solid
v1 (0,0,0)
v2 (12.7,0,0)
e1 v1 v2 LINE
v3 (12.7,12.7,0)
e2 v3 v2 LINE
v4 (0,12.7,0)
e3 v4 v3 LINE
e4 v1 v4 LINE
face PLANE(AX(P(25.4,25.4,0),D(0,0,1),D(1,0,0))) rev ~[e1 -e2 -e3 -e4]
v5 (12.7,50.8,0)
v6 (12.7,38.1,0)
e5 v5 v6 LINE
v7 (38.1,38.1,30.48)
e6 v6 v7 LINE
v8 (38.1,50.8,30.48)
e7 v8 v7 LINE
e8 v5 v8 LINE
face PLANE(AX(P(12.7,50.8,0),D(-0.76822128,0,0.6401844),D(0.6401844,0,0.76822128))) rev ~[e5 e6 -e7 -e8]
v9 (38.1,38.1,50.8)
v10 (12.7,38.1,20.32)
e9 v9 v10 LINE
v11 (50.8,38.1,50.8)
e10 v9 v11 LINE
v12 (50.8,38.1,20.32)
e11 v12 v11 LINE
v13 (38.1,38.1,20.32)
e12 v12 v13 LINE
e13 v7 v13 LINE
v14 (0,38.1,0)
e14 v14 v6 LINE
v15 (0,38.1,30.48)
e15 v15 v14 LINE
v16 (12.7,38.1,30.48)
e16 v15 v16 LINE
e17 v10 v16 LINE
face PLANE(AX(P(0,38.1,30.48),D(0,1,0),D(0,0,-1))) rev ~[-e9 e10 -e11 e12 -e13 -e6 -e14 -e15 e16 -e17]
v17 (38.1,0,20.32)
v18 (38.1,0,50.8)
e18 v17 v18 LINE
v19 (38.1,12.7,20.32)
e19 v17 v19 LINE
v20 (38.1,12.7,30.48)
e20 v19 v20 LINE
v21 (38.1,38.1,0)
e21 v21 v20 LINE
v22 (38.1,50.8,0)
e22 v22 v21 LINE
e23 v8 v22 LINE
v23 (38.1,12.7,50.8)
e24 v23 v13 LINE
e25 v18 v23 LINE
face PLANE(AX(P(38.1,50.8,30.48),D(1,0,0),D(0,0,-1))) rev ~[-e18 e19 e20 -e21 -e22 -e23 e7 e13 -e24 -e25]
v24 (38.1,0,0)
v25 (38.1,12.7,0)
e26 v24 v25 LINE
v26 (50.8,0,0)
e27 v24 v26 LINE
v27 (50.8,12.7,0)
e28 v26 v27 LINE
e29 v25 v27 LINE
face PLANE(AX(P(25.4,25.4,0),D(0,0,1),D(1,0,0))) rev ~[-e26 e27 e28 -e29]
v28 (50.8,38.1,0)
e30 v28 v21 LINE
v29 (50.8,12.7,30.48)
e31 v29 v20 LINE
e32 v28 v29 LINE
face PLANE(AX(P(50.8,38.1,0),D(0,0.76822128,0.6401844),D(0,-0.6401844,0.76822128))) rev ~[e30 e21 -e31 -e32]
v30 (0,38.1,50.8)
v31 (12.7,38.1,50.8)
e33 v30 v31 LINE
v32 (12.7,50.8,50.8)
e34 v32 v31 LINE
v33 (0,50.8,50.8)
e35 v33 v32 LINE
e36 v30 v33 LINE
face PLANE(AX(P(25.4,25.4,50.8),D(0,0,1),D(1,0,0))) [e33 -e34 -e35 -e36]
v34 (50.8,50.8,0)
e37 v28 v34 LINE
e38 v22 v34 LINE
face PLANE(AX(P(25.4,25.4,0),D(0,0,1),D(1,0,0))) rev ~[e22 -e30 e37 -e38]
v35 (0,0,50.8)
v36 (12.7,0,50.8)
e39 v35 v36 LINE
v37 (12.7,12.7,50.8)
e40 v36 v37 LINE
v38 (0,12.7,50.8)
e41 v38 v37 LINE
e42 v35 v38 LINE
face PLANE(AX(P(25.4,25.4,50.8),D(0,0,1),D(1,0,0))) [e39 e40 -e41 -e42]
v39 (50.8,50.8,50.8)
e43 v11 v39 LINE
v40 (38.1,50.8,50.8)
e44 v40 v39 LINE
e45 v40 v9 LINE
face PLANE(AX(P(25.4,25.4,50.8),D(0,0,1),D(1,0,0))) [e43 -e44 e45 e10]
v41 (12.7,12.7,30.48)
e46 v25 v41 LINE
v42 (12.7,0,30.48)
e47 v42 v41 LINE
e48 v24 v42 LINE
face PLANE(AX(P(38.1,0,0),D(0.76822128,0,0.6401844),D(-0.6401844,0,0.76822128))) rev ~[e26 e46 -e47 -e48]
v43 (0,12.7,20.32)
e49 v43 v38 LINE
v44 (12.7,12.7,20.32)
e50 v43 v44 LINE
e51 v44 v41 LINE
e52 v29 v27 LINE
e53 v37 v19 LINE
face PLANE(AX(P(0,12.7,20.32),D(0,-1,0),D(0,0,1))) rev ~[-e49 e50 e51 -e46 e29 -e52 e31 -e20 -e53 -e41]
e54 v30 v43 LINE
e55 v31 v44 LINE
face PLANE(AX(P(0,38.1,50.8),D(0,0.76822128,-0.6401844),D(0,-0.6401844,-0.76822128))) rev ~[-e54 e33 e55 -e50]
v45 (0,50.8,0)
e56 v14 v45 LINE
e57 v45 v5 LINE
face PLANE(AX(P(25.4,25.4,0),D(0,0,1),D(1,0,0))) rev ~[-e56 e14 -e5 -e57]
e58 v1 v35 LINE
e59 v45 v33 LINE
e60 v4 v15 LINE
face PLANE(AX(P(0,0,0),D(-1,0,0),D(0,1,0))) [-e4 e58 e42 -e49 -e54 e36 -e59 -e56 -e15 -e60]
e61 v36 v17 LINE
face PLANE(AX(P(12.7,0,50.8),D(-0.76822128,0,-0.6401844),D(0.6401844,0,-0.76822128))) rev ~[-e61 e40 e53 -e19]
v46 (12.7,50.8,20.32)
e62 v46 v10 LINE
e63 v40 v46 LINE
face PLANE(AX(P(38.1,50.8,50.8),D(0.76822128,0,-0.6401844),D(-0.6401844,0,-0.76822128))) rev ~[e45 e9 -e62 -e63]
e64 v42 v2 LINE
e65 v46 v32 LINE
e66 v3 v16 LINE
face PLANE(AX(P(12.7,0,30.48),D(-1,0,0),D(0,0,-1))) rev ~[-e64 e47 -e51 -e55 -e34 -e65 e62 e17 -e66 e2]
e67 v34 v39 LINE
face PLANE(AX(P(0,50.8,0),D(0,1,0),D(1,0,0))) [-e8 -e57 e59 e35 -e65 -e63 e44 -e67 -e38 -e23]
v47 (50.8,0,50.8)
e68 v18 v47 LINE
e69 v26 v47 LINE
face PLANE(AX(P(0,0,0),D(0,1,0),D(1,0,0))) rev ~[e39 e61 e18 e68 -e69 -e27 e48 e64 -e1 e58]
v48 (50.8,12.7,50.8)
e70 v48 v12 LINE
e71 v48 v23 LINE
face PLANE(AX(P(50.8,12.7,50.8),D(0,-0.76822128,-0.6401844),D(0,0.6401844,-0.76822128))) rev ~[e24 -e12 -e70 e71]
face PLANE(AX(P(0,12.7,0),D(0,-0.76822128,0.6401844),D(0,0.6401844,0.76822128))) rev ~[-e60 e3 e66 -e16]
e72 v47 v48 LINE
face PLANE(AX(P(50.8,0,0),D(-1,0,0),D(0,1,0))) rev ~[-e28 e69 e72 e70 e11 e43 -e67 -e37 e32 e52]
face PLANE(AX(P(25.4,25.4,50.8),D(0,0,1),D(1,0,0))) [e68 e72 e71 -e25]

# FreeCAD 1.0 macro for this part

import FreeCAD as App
import Part
import Sketcher
from FreeCAD import Vector
Q = App.Units.Quantity

doc = App.newDocument("Part")
params = doc.addObject("Spreadsheet::Sheet", "Params")
for row, (alias, value) in enumerate([
    ("sketch1_width", "2 in"),
    ("sketch1_width2", "1 in"),
    ("pad1_length", "2 in"),
    ("sketch2_width", "1 in"),
    ("sketch2_height", "1.2 in"),
    ("pocket1_length", "0.5 in"),
    ("sketch3_width", "1 in"),
    ("sketch3_height", "1.2 in"),
    ("pocket2_length", "0.5 in"),
    ("sketch4_width", "1 in"),
    ("sketch4_height", "1.2 in"),
    ("pocket3_length", "0.5 in"),
    ("sketch5_width", "1 in"),
    ("sketch5_height", "1.2 in"),
    ("pocket4_length", "0.5 in"),
], start=1):
    params.set(f"A{row}", alias)
    params.set(f"B{row}", "=" + value)
    params.setAlias(f"B{row}", alias)

body = doc.addObject("PartDesign::Body", "Body")

sketch1 = body.newObject("Sketcher::SketchObject", "Sketch")
sketch1.AttachmentSupport = (doc.getObject("XY_Plane"), [""])
sketch1.MapMode = "FlatFace"
sketch1.addGeometry([
    Part.LineSegment(Vector(0, 51, 0), Vector(0, 0, 0)),
    Part.LineSegment(Vector(0, 0, 0), Vector(51, 0, 0)),
    Part.LineSegment(Vector(51, 0, 0), Vector(51, 51, 0)),
    Part.LineSegment(Vector(51, 51, 0), Vector(0, 51, 0)),
    Part.LineSegment(Vector(38, 13, 0), Vector(13, 13, 0)),
    Part.LineSegment(Vector(13, 13, 0), Vector(13, 38, 0)),
    Part.LineSegment(Vector(13, 38, 0), Vector(38, 38, 0)),
    Part.LineSegment(Vector(38, 38, 0), Vector(38, 13, 0)),
], False)
sketch1.addConstraint([
    Sketcher.Constraint("Coincident", 0, 2, 1, 1),
    Sketcher.Constraint("Coincident", 1, 2, 2, 1),
    Sketcher.Constraint("Coincident", 2, 2, 3, 1),
    Sketcher.Constraint("Coincident", 3, 2, 0, 1),
    Sketcher.Constraint("Coincident", 4, 2, 5, 1),
    Sketcher.Constraint("Coincident", 5, 2, 6, 1),
    Sketcher.Constraint("Coincident", 6, 2, 7, 1),
    Sketcher.Constraint("Coincident", 7, 2, 4, 1),
    Sketcher.Constraint("Vertical", 0),
    Sketcher.Constraint("Horizontal", 1),
    Sketcher.Constraint("Vertical", 2),
    Sketcher.Constraint("Horizontal", 3),
    Sketcher.Constraint("Horizontal", 4),
    Sketcher.Constraint("Vertical", 5),
    Sketcher.Constraint("Horizontal", 6),
    Sketcher.Constraint("Vertical", 7),
    Sketcher.Constraint("Coincident", 0, 2, -1, 1),
    Sketcher.Constraint("Equal", 3, 0),
    Sketcher.Constraint("Equal", 6, 5),
    Sketcher.Constraint("DistanceX", 1, 1, 1, 2, Q("2 in")),
    Sketcher.Constraint("DistanceX", 4, 2, 4, 1, Q("1 in")),
    Sketcher.Constraint("DistanceX", -1, 1, 4, 2, Q("0.5 in")),
    Sketcher.Constraint("DistanceY", -1, 1, 4, 2, Q("0.5 in")),
])
sketch1.setExpression("Constraints[19]", "Params.sketch1_width")
sketch1.setExpression("Constraints[20]", "Params.sketch1_width2")
pad1 = body.newObject("PartDesign::Pad", "Pad")
pad1.Profile = sketch1
pad1.setExpression("Length", "Params.pad1_length")

sketch2 = body.newObject("Sketcher::SketchObject", "Sketch001")
sketch2.AttachmentSupport = (doc.getObject("YZ_Plane"), [""])
sketch2.MapMode = "FlatFace"
sketch2.AttachmentOffset = App.Placement(Vector(0, 0, 2 * 25.4), App.Rotation())
sketch2.addGeometry([
    Part.LineSegment(Vector(13, 30, 0), Vector(13, 0, 0)),
    Part.LineSegment(Vector(13, 0, 0), Vector(38, 0, 0)),
    Part.LineSegment(Vector(38, 0, 0), Vector(13, 30, 0)),
    Part.LineSegment(Vector(38, 20, 0), Vector(38, 51, 0)),
    Part.LineSegment(Vector(38, 51, 0), Vector(13, 51, 0)),
    Part.LineSegment(Vector(13, 51, 0), Vector(38, 20, 0)),
], False)
sketch2.addConstraint([
    Sketcher.Constraint("Coincident", 0, 2, 1, 1),
    Sketcher.Constraint("Coincident", 1, 2, 2, 1),
    Sketcher.Constraint("Coincident", 2, 2, 0, 1),
    Sketcher.Constraint("Coincident", 3, 2, 4, 1),
    Sketcher.Constraint("Coincident", 4, 2, 5, 1),
    Sketcher.Constraint("Coincident", 5, 2, 3, 1),
    Sketcher.Constraint("Vertical", 0),
    Sketcher.Constraint("Horizontal", 1),
    Sketcher.Constraint("Vertical", 3),
    Sketcher.Constraint("Horizontal", 4),
    Sketcher.Constraint("PointOnObject", 0, 2, -1),
    Sketcher.Constraint("Parallel", 2, 5),
    Sketcher.Constraint("Vertical", 1, 2, 3, 2),
    Sketcher.Constraint("Vertical", 2, 2, 4, 2),
    Sketcher.Constraint("DistanceX", 1, 1, 1, 2, Q("1 in")),
    Sketcher.Constraint("DistanceY", 0, 2, 0, 1, Q("1.2 in")),
    Sketcher.Constraint("DistanceY", -1, 1, 3, 2, Q("2 in")),
    Sketcher.Constraint("DistanceX", -1, 1, 0, 2, Q("0.5 in")),
])
sketch2.setExpression("Constraints[14]", "Params.sketch2_width")
sketch2.setExpression("Constraints[15]", "Params.sketch2_height")
pocket1 = body.newObject("PartDesign::Pocket", "Pocket")
pocket1.Profile = sketch2
pocket1.setExpression("Length", "Params.pocket1_length")

sketch3 = body.newObject("Sketcher::SketchObject", "Sketch002")
sketch3.AttachmentSupport = (doc.getObject("XZ_Plane"), [""])
sketch3.MapMode = "FlatFace"
sketch3.addGeometry([
    Part.LineSegment(Vector(13, 30, 0), Vector(13, 0, 0)),
    Part.LineSegment(Vector(13, 0, 0), Vector(38, 0, 0)),
    Part.LineSegment(Vector(38, 0, 0), Vector(13, 30, 0)),
    Part.LineSegment(Vector(38, 20, 0), Vector(38, 51, 0)),
    Part.LineSegment(Vector(38, 51, 0), Vector(13, 51, 0)),
    Part.LineSegment(Vector(13, 51, 0), Vector(38, 20, 0)),
], False)
sketch3.addConstraint([
    Sketcher.Constraint("Coincident", 0, 2, 1, 1),
    Sketcher.Constraint("Coincident", 1, 2, 2, 1),
    Sketcher.Constraint("Coincident", 2, 2, 0, 1),
    Sketcher.Constraint("Coincident", 3, 2, 4, 1),
    Sketcher.Constraint("Coincident", 4, 2, 5, 1),
    Sketcher.Constraint("Coincident", 5, 2, 3, 1),
    Sketcher.Constraint("Vertical", 0),
    Sketcher.Constraint("Horizontal", 1),
    Sketcher.Constraint("Vertical", 3),
    Sketcher.Constraint("Horizontal", 4),
    Sketcher.Constraint("PointOnObject", 0, 2, -1),
    Sketcher.Constraint("Parallel", 2, 5),
    Sketcher.Constraint("Vertical", 1, 2, 3, 2),
    Sketcher.Constraint("Vertical", 2, 2, 4, 2),
    Sketcher.Constraint("DistanceX", 1, 1, 1, 2, Q("1 in")),
    Sketcher.Constraint("DistanceY", 0, 2, 0, 1, Q("1.2 in")),
    Sketcher.Constraint("DistanceY", -1, 1, 3, 2, Q("2 in")),
    Sketcher.Constraint("DistanceX", -1, 1, 0, 2, Q("0.5 in")),
])
sketch3.setExpression("Constraints[14]", "Params.sketch3_width")
sketch3.setExpression("Constraints[15]", "Params.sketch3_height")
pocket2 = body.newObject("PartDesign::Pocket", "Pocket001")
pocket2.Profile = sketch3
pocket2.setExpression("Length", "Params.pocket2_length")

sketch4 = body.newObject("Sketcher::SketchObject", "Sketch003")
sketch4.AttachmentSupport = (doc.getObject("YZ_Plane"), [""])
sketch4.MapMode = "FlatFace"
sketch4.addGeometry([
    Part.LineSegment(Vector(38, 30, 0), Vector(38, 0, 0)),
    Part.LineSegment(Vector(38, 0, 0), Vector(13, 0, 0)),
    Part.LineSegment(Vector(13, 0, 0), Vector(38, 30, 0)),
    Part.LineSegment(Vector(13, 20, 0), Vector(13, 51, 0)),
    Part.LineSegment(Vector(13, 51, 0), Vector(38, 51, 0)),
    Part.LineSegment(Vector(38, 51, 0), Vector(13, 20, 0)),
], False)
sketch4.addConstraint([
    Sketcher.Constraint("Coincident", 0, 2, 1, 1),
    Sketcher.Constraint("Coincident", 1, 2, 2, 1),
    Sketcher.Constraint("Coincident", 2, 2, 0, 1),
    Sketcher.Constraint("Coincident", 3, 2, 4, 1),
    Sketcher.Constraint("Coincident", 4, 2, 5, 1),
    Sketcher.Constraint("Coincident", 5, 2, 3, 1),
    Sketcher.Constraint("Vertical", 0),
    Sketcher.Constraint("Horizontal", 1),
    Sketcher.Constraint("Vertical", 3),
    Sketcher.Constraint("Horizontal", 4),
    Sketcher.Constraint("PointOnObject", 0, 2, -1),
    Sketcher.Constraint("Parallel", 2, 5),
    Sketcher.Constraint("Vertical", 1, 2, 3, 2),
    Sketcher.Constraint("Vertical", 2, 2, 4, 2),
    Sketcher.Constraint("DistanceX", 1, 2, 1, 1, Q("1 in")),
    Sketcher.Constraint("DistanceY", 0, 2, 0, 1, Q("1.2 in")),
    Sketcher.Constraint("DistanceY", -1, 1, 3, 2, Q("2 in")),
    Sketcher.Constraint("DistanceX", -1, 1, 0, 2, Q("1.5 in")),
])
sketch4.setExpression("Constraints[14]", "Params.sketch4_width")
sketch4.setExpression("Constraints[15]", "Params.sketch4_height")
pocket3 = body.newObject("PartDesign::Pocket", "Pocket002")
pocket3.Profile = sketch4
pocket3.setExpression("Length", "Params.pocket3_length")
pocket3.Reversed = True

sketch5 = body.newObject("Sketcher::SketchObject", "Sketch004")
sketch5.AttachmentSupport = (doc.getObject("XZ_Plane"), [""])
sketch5.MapMode = "FlatFace"
sketch5.AttachmentOffset = App.Placement(Vector(0, 0, -2 * 25.4), App.Rotation())
sketch5.addGeometry([
    Part.LineSegment(Vector(38, 30, 0), Vector(38, 0, 0)),
    Part.LineSegment(Vector(38, 0, 0), Vector(13, 0, 0)),
    Part.LineSegment(Vector(13, 0, 0), Vector(38, 30, 0)),
    Part.LineSegment(Vector(13, 20, 0), Vector(13, 51, 0)),
    Part.LineSegment(Vector(13, 51, 0), Vector(38, 51, 0)),
    Part.LineSegment(Vector(38, 51, 0), Vector(13, 20, 0)),
], False)
sketch5.addConstraint([
    Sketcher.Constraint("Coincident", 0, 2, 1, 1),
    Sketcher.Constraint("Coincident", 1, 2, 2, 1),
    Sketcher.Constraint("Coincident", 2, 2, 0, 1),
    Sketcher.Constraint("Coincident", 3, 2, 4, 1),
    Sketcher.Constraint("Coincident", 4, 2, 5, 1),
    Sketcher.Constraint("Coincident", 5, 2, 3, 1),
    Sketcher.Constraint("Vertical", 0),
    Sketcher.Constraint("Horizontal", 1),
    Sketcher.Constraint("Vertical", 3),
    Sketcher.Constraint("Horizontal", 4),
    Sketcher.Constraint("PointOnObject", 0, 2, -1),
    Sketcher.Constraint("Parallel", 2, 5),
    Sketcher.Constraint("Vertical", 1, 2, 3, 2),
    Sketcher.Constraint("Vertical", 2, 2, 4, 2),
    Sketcher.Constraint("DistanceX", 1, 2, 1, 1, Q("1 in")),
    Sketcher.Constraint("DistanceY", 0, 2, 0, 1, Q("1.2 in")),
    Sketcher.Constraint("DistanceY", -1, 1, 3, 2, Q("2 in")),
    Sketcher.Constraint("DistanceX", -1, 1, 0, 2, Q("1.5 in")),
])
sketch5.setExpression("Constraints[14]", "Params.sketch5_width")
sketch5.setExpression("Constraints[15]", "Params.sketch5_height")
pocket4 = body.newObject("PartDesign::Pocket", "Pocket003")
pocket4.Profile = sketch5
pocket4.setExpression("Length", "Params.pocket4_length")
pocket4.Reversed = True

doc.recompute()
